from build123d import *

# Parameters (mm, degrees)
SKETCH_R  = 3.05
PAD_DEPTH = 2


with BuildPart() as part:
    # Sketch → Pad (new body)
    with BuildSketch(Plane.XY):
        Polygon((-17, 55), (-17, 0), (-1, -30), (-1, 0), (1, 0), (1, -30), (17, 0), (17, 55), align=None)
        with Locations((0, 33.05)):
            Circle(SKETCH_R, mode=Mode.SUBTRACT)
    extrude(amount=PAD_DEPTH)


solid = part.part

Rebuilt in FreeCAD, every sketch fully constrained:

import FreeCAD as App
import Part
import Sketcher

V = App.Vector
Q = App.Units.Quantity

doc = App.newDocument("Part")
body = doc.addObject("PartDesign::Body", "Body")

# Sketch on XY plane
sketch1 = body.newObject("Sketcher::SketchObject", "Sketch")
sketch1.AttachmentSupport = (doc.getObject("XY_Plane"), [""])
sketch1.MapMode = "FlatFace"
sketch1.addGeometry(Part.LineSegment(V(-17, 55, 0), V(-17, 0, 0)), False)
sketch1.addGeometry(Part.LineSegment(V(-17, 0, 0), V(-1, -30, 0)), False)
sketch1.addGeometry(Part.LineSegment(V(-1, -30, 0), V(-1, 0, 0)), False)
sketch1.addGeometry(Part.LineSegment(V(-1, 0, 0), V(1, 0, 0)), False)
sketch1.addGeometry(Part.LineSegment(V(1, 0, 0), V(1, -30, 0)), False)
sketch1.addGeometry(Part.LineSegment(V(1, -30, 0), V(17, 0, 0)), False)
sketch1.addGeometry(Part.LineSegment(V(17, 0, 0), V(17, 55, 0)), False)
sketch1.addGeometry(Part.LineSegment(V(17, 55, 0), V(-17, 55, 0)), False)
sketch1.addGeometry(Part.Circle(V(0, 33, 0), V(0, 0, 1), 3), False)
sketch1.addConstraint(Sketcher.Constraint("Coincident", 0, 2, 1, 1))
sketch1.addConstraint(Sketcher.Constraint("Coincident", 1, 2, 2, 1))
sketch1.addConstraint(Sketcher.Constraint("Coincident", 2, 2, 3, 1))
sketch1.addConstraint(Sketcher.Constraint("Coincident", 3, 2, 4, 1))
sketch1.addConstraint(Sketcher.Constraint("Coincident", 4, 2, 5, 1))
sketch1.addConstraint(Sketcher.Constraint("Coincident", 5, 2, 6, 1))
sketch1.addConstraint(Sketcher.Constraint("Coincident", 6, 2, 7, 1))
sketch1.addConstraint(Sketcher.Constraint("Coincident", 7, 2, 0, 1))
sketch1.addConstraint(Sketcher.Constraint("Vertical", 0))
sketch1.addConstraint(Sketcher.Constraint("Vertical", 2))
sketch1.addConstraint(Sketcher.Constraint("Horizontal", 3))
sketch1.addConstraint(Sketcher.Constraint("Vertical", 4))
sketch1.addConstraint(Sketcher.Constraint("Vertical", 6))
sketch1.addConstraint(Sketcher.Constraint("Horizontal", 7))
sketch1.addConstraint(Sketcher.Constraint("Symmetric", 2, 2, 3, 2, -1, 1))
sketch1.addConstraint(Sketcher.Constraint("Symmetric", 0, 2, 5, 2, -1, 1))
sketch1.addConstraint(Sketcher.Constraint("PointOnObject", 8, 3, -2))
sketch1.addConstraint(Sketcher.Constraint("PointOnObject", 0, 2, -1))
sketch1.addConstraint(Sketcher.Constraint("Horizontal", 1, 2, 4, 2))
sketch1.addConstraint(Sketcher.Constraint("Diameter", 8, Q("6.1 mm")))
sketch1.addConstraint(Sketcher.Constraint("DistanceX", 3, 1, 3, 2, Q("2 mm")))
sketch1.addConstraint(Sketcher.Constraint("DistanceX", 7, 2, 7, 1, Q("34 mm")))
sketch1.addConstraint(Sketcher.Constraint("DistanceY", 0, 2, 0, 1, Q("55 mm")))
sketch1.addConstraint(Sketcher.Constraint("DistanceY", 2, 1, 2, 2, Q("30 mm")))
sketch1.addConstraint(Sketcher.Constraint("DistanceY", -1, 1, 8, 3, Q("33.05 mm")))
pad1 = body.newObject("PartDesign::Pad", "Pad")
pad1.Profile = sketch1
pad1.Length = 2

doc.recompute()
